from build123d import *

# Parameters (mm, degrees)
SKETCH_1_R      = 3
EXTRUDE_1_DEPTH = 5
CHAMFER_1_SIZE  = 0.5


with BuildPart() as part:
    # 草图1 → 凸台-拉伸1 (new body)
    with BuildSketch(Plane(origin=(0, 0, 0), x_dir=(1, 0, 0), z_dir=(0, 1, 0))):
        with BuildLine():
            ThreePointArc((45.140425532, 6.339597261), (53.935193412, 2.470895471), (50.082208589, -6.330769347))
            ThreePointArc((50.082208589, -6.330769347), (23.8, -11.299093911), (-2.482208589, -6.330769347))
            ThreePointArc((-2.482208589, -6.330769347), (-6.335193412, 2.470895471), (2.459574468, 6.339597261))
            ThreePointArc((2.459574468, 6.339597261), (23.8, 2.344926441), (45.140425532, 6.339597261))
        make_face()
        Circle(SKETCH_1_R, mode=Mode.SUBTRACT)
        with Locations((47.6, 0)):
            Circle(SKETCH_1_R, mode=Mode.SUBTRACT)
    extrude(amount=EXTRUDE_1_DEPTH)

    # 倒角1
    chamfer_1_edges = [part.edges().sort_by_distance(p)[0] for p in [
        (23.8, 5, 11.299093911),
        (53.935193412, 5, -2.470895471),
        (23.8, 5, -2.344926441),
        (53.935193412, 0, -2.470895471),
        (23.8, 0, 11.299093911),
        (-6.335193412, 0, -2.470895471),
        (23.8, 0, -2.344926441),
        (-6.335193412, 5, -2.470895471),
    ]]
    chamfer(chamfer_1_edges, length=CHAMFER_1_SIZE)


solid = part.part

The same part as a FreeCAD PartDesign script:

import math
import FreeCAD as App
import Part
import Sketcher

V = App.Vector


def edges_at(feature, points):
    """Names of the edges that pass closest to the given points."""
    edges = feature.Shape.Edges
    near = lambda p: min(range(len(edges)), key=lambda i: edges[i].distToShape(Part.Vertex(*p))[0])
    return sorted({f"Edge{near(p) + 1}" for p in points})

doc = App.newDocument("Part")
params = doc.addObject("Spreadsheet::Sheet", "Params")
for row, (alias, value) in enumerate([
    ("sketch1_diameter", "6 mm"),
    ("sketch1_radius", "59 mm"),
    ("sketch1_radius2", "72 mm"),
    ("sketch1_radius3", "6.8 mm"),
    ("pad1_length", "5 mm"),
    ("chamfer_size", "0.5 mm"),
], start=1):
    params.set(f"A{row}", alias)
    params.set(f"B{row}", "=" + value)
    params.setAlias(f"B{row}", alias)

body = doc.addObject("PartDesign::Body", "Body")

# Sketch on XZ plane
sketch1 = body.newObject("Sketcher::SketchObject", "Sketch")
sketch1.AttachmentSupport = (doc.getObject("XZ_Plane"), [""])
sketch1.MapMode = "FlatFace"
sketch1.addGeometry([
    Part.ArcOfCircle(Part.Circle(V(47.6, 0, 0), V(0, 0, 1), 6.8), math.radians(-111), math.radians(69)),  # 0
    Part.ArcOfCircle(Part.Circle(V(23.8, -61.3, 0), V(0, 0, 1), 59), math.radians(69), math.radians(111)),  # 1
    Part.ArcOfCircle(Part.Circle(V(0, 0, 0), V(0, 0, 1), 6.8), math.radians(111), math.radians(291)),  # 2
    Part.ArcOfCircle(Part.Circle(V(23.8, -60.7, 0), V(0, 0, 1), 72), math.radians(69), math.radians(111)),  # 3
    Part.Circle(V(47.6, 0, 0), V(0, 0, 1), 3),  # 4
    Part.Circle(V(0, 0, 0), V(0, 0, 1), 3),  # 5
], False)
sketch1.addConstraint([
    Sketcher.Constraint("Tangent", 0, 1, 1, 1),
    Sketcher.Constraint("Tangent", 1, 2, 2, 2),
    Sketcher.Constraint("Tangent", 2, 1, 3, 2),
    Sketcher.Constraint("Tangent", 3, 1, 0, 2),
    Sketcher.Constraint("Coincident", 2, 3, -1, 1),
    Sketcher.Constraint("Coincident", 5, 3, -1, 1),
    Sketcher.Constraint("Coincident", 4, 3, 0, 3),
    Sketcher.Constraint("Equal", 0, 2),
    Sketcher.Constraint("Equal", 4, 5),
    Sketcher.Constraint("PointOnObject", 0, 3, -1),
    Sketcher.Constraint("Diameter", 4, 6.0),
    Sketcher.Constraint("Radius", 1, 59.0),
    Sketcher.Constraint("Radius", 3, 72.0),
    Sketcher.Constraint("Radius", 0, 6.8),
    Sketcher.Constraint("DistanceX", -1, 1, 0, 3, 47.6),
])
sketch1.setExpression("Constraints[10]", "Params.sketch1_diameter")
sketch1.setExpression("Constraints[11]", "Params.sketch1_radius")
sketch1.setExpression("Constraints[12]", "Params.sketch1_radius2")
sketch1.setExpression("Constraints[13]", "Params.sketch1_radius3")
pad1 = body.newObject("PartDesign::Pad", "Pad")
pad1.Profile = sketch1
pad1.setExpression("Length", "Params.pad1_length")
pad1.Reversed = True
doc.recompute()

chamfer = body.newObject("PartDesign::Chamfer", "Chamfer")
chamfer.Base = (pad1, edges_at(pad1, [
    (23.8, 5, 11.299),
    (53.935, 5, -2.471),
    (23.8, 5, -2.345),
    (53.935, 0, -2.471),
    (23.8, 0, 11.299),
    (-6.335, 0, -2.471),
    (23.8, 0, -2.345),
    (-6.335, 5, -2.471),
]))
chamfer.setExpression("Size", "Params.chamfer_size")

doc.recompute()
